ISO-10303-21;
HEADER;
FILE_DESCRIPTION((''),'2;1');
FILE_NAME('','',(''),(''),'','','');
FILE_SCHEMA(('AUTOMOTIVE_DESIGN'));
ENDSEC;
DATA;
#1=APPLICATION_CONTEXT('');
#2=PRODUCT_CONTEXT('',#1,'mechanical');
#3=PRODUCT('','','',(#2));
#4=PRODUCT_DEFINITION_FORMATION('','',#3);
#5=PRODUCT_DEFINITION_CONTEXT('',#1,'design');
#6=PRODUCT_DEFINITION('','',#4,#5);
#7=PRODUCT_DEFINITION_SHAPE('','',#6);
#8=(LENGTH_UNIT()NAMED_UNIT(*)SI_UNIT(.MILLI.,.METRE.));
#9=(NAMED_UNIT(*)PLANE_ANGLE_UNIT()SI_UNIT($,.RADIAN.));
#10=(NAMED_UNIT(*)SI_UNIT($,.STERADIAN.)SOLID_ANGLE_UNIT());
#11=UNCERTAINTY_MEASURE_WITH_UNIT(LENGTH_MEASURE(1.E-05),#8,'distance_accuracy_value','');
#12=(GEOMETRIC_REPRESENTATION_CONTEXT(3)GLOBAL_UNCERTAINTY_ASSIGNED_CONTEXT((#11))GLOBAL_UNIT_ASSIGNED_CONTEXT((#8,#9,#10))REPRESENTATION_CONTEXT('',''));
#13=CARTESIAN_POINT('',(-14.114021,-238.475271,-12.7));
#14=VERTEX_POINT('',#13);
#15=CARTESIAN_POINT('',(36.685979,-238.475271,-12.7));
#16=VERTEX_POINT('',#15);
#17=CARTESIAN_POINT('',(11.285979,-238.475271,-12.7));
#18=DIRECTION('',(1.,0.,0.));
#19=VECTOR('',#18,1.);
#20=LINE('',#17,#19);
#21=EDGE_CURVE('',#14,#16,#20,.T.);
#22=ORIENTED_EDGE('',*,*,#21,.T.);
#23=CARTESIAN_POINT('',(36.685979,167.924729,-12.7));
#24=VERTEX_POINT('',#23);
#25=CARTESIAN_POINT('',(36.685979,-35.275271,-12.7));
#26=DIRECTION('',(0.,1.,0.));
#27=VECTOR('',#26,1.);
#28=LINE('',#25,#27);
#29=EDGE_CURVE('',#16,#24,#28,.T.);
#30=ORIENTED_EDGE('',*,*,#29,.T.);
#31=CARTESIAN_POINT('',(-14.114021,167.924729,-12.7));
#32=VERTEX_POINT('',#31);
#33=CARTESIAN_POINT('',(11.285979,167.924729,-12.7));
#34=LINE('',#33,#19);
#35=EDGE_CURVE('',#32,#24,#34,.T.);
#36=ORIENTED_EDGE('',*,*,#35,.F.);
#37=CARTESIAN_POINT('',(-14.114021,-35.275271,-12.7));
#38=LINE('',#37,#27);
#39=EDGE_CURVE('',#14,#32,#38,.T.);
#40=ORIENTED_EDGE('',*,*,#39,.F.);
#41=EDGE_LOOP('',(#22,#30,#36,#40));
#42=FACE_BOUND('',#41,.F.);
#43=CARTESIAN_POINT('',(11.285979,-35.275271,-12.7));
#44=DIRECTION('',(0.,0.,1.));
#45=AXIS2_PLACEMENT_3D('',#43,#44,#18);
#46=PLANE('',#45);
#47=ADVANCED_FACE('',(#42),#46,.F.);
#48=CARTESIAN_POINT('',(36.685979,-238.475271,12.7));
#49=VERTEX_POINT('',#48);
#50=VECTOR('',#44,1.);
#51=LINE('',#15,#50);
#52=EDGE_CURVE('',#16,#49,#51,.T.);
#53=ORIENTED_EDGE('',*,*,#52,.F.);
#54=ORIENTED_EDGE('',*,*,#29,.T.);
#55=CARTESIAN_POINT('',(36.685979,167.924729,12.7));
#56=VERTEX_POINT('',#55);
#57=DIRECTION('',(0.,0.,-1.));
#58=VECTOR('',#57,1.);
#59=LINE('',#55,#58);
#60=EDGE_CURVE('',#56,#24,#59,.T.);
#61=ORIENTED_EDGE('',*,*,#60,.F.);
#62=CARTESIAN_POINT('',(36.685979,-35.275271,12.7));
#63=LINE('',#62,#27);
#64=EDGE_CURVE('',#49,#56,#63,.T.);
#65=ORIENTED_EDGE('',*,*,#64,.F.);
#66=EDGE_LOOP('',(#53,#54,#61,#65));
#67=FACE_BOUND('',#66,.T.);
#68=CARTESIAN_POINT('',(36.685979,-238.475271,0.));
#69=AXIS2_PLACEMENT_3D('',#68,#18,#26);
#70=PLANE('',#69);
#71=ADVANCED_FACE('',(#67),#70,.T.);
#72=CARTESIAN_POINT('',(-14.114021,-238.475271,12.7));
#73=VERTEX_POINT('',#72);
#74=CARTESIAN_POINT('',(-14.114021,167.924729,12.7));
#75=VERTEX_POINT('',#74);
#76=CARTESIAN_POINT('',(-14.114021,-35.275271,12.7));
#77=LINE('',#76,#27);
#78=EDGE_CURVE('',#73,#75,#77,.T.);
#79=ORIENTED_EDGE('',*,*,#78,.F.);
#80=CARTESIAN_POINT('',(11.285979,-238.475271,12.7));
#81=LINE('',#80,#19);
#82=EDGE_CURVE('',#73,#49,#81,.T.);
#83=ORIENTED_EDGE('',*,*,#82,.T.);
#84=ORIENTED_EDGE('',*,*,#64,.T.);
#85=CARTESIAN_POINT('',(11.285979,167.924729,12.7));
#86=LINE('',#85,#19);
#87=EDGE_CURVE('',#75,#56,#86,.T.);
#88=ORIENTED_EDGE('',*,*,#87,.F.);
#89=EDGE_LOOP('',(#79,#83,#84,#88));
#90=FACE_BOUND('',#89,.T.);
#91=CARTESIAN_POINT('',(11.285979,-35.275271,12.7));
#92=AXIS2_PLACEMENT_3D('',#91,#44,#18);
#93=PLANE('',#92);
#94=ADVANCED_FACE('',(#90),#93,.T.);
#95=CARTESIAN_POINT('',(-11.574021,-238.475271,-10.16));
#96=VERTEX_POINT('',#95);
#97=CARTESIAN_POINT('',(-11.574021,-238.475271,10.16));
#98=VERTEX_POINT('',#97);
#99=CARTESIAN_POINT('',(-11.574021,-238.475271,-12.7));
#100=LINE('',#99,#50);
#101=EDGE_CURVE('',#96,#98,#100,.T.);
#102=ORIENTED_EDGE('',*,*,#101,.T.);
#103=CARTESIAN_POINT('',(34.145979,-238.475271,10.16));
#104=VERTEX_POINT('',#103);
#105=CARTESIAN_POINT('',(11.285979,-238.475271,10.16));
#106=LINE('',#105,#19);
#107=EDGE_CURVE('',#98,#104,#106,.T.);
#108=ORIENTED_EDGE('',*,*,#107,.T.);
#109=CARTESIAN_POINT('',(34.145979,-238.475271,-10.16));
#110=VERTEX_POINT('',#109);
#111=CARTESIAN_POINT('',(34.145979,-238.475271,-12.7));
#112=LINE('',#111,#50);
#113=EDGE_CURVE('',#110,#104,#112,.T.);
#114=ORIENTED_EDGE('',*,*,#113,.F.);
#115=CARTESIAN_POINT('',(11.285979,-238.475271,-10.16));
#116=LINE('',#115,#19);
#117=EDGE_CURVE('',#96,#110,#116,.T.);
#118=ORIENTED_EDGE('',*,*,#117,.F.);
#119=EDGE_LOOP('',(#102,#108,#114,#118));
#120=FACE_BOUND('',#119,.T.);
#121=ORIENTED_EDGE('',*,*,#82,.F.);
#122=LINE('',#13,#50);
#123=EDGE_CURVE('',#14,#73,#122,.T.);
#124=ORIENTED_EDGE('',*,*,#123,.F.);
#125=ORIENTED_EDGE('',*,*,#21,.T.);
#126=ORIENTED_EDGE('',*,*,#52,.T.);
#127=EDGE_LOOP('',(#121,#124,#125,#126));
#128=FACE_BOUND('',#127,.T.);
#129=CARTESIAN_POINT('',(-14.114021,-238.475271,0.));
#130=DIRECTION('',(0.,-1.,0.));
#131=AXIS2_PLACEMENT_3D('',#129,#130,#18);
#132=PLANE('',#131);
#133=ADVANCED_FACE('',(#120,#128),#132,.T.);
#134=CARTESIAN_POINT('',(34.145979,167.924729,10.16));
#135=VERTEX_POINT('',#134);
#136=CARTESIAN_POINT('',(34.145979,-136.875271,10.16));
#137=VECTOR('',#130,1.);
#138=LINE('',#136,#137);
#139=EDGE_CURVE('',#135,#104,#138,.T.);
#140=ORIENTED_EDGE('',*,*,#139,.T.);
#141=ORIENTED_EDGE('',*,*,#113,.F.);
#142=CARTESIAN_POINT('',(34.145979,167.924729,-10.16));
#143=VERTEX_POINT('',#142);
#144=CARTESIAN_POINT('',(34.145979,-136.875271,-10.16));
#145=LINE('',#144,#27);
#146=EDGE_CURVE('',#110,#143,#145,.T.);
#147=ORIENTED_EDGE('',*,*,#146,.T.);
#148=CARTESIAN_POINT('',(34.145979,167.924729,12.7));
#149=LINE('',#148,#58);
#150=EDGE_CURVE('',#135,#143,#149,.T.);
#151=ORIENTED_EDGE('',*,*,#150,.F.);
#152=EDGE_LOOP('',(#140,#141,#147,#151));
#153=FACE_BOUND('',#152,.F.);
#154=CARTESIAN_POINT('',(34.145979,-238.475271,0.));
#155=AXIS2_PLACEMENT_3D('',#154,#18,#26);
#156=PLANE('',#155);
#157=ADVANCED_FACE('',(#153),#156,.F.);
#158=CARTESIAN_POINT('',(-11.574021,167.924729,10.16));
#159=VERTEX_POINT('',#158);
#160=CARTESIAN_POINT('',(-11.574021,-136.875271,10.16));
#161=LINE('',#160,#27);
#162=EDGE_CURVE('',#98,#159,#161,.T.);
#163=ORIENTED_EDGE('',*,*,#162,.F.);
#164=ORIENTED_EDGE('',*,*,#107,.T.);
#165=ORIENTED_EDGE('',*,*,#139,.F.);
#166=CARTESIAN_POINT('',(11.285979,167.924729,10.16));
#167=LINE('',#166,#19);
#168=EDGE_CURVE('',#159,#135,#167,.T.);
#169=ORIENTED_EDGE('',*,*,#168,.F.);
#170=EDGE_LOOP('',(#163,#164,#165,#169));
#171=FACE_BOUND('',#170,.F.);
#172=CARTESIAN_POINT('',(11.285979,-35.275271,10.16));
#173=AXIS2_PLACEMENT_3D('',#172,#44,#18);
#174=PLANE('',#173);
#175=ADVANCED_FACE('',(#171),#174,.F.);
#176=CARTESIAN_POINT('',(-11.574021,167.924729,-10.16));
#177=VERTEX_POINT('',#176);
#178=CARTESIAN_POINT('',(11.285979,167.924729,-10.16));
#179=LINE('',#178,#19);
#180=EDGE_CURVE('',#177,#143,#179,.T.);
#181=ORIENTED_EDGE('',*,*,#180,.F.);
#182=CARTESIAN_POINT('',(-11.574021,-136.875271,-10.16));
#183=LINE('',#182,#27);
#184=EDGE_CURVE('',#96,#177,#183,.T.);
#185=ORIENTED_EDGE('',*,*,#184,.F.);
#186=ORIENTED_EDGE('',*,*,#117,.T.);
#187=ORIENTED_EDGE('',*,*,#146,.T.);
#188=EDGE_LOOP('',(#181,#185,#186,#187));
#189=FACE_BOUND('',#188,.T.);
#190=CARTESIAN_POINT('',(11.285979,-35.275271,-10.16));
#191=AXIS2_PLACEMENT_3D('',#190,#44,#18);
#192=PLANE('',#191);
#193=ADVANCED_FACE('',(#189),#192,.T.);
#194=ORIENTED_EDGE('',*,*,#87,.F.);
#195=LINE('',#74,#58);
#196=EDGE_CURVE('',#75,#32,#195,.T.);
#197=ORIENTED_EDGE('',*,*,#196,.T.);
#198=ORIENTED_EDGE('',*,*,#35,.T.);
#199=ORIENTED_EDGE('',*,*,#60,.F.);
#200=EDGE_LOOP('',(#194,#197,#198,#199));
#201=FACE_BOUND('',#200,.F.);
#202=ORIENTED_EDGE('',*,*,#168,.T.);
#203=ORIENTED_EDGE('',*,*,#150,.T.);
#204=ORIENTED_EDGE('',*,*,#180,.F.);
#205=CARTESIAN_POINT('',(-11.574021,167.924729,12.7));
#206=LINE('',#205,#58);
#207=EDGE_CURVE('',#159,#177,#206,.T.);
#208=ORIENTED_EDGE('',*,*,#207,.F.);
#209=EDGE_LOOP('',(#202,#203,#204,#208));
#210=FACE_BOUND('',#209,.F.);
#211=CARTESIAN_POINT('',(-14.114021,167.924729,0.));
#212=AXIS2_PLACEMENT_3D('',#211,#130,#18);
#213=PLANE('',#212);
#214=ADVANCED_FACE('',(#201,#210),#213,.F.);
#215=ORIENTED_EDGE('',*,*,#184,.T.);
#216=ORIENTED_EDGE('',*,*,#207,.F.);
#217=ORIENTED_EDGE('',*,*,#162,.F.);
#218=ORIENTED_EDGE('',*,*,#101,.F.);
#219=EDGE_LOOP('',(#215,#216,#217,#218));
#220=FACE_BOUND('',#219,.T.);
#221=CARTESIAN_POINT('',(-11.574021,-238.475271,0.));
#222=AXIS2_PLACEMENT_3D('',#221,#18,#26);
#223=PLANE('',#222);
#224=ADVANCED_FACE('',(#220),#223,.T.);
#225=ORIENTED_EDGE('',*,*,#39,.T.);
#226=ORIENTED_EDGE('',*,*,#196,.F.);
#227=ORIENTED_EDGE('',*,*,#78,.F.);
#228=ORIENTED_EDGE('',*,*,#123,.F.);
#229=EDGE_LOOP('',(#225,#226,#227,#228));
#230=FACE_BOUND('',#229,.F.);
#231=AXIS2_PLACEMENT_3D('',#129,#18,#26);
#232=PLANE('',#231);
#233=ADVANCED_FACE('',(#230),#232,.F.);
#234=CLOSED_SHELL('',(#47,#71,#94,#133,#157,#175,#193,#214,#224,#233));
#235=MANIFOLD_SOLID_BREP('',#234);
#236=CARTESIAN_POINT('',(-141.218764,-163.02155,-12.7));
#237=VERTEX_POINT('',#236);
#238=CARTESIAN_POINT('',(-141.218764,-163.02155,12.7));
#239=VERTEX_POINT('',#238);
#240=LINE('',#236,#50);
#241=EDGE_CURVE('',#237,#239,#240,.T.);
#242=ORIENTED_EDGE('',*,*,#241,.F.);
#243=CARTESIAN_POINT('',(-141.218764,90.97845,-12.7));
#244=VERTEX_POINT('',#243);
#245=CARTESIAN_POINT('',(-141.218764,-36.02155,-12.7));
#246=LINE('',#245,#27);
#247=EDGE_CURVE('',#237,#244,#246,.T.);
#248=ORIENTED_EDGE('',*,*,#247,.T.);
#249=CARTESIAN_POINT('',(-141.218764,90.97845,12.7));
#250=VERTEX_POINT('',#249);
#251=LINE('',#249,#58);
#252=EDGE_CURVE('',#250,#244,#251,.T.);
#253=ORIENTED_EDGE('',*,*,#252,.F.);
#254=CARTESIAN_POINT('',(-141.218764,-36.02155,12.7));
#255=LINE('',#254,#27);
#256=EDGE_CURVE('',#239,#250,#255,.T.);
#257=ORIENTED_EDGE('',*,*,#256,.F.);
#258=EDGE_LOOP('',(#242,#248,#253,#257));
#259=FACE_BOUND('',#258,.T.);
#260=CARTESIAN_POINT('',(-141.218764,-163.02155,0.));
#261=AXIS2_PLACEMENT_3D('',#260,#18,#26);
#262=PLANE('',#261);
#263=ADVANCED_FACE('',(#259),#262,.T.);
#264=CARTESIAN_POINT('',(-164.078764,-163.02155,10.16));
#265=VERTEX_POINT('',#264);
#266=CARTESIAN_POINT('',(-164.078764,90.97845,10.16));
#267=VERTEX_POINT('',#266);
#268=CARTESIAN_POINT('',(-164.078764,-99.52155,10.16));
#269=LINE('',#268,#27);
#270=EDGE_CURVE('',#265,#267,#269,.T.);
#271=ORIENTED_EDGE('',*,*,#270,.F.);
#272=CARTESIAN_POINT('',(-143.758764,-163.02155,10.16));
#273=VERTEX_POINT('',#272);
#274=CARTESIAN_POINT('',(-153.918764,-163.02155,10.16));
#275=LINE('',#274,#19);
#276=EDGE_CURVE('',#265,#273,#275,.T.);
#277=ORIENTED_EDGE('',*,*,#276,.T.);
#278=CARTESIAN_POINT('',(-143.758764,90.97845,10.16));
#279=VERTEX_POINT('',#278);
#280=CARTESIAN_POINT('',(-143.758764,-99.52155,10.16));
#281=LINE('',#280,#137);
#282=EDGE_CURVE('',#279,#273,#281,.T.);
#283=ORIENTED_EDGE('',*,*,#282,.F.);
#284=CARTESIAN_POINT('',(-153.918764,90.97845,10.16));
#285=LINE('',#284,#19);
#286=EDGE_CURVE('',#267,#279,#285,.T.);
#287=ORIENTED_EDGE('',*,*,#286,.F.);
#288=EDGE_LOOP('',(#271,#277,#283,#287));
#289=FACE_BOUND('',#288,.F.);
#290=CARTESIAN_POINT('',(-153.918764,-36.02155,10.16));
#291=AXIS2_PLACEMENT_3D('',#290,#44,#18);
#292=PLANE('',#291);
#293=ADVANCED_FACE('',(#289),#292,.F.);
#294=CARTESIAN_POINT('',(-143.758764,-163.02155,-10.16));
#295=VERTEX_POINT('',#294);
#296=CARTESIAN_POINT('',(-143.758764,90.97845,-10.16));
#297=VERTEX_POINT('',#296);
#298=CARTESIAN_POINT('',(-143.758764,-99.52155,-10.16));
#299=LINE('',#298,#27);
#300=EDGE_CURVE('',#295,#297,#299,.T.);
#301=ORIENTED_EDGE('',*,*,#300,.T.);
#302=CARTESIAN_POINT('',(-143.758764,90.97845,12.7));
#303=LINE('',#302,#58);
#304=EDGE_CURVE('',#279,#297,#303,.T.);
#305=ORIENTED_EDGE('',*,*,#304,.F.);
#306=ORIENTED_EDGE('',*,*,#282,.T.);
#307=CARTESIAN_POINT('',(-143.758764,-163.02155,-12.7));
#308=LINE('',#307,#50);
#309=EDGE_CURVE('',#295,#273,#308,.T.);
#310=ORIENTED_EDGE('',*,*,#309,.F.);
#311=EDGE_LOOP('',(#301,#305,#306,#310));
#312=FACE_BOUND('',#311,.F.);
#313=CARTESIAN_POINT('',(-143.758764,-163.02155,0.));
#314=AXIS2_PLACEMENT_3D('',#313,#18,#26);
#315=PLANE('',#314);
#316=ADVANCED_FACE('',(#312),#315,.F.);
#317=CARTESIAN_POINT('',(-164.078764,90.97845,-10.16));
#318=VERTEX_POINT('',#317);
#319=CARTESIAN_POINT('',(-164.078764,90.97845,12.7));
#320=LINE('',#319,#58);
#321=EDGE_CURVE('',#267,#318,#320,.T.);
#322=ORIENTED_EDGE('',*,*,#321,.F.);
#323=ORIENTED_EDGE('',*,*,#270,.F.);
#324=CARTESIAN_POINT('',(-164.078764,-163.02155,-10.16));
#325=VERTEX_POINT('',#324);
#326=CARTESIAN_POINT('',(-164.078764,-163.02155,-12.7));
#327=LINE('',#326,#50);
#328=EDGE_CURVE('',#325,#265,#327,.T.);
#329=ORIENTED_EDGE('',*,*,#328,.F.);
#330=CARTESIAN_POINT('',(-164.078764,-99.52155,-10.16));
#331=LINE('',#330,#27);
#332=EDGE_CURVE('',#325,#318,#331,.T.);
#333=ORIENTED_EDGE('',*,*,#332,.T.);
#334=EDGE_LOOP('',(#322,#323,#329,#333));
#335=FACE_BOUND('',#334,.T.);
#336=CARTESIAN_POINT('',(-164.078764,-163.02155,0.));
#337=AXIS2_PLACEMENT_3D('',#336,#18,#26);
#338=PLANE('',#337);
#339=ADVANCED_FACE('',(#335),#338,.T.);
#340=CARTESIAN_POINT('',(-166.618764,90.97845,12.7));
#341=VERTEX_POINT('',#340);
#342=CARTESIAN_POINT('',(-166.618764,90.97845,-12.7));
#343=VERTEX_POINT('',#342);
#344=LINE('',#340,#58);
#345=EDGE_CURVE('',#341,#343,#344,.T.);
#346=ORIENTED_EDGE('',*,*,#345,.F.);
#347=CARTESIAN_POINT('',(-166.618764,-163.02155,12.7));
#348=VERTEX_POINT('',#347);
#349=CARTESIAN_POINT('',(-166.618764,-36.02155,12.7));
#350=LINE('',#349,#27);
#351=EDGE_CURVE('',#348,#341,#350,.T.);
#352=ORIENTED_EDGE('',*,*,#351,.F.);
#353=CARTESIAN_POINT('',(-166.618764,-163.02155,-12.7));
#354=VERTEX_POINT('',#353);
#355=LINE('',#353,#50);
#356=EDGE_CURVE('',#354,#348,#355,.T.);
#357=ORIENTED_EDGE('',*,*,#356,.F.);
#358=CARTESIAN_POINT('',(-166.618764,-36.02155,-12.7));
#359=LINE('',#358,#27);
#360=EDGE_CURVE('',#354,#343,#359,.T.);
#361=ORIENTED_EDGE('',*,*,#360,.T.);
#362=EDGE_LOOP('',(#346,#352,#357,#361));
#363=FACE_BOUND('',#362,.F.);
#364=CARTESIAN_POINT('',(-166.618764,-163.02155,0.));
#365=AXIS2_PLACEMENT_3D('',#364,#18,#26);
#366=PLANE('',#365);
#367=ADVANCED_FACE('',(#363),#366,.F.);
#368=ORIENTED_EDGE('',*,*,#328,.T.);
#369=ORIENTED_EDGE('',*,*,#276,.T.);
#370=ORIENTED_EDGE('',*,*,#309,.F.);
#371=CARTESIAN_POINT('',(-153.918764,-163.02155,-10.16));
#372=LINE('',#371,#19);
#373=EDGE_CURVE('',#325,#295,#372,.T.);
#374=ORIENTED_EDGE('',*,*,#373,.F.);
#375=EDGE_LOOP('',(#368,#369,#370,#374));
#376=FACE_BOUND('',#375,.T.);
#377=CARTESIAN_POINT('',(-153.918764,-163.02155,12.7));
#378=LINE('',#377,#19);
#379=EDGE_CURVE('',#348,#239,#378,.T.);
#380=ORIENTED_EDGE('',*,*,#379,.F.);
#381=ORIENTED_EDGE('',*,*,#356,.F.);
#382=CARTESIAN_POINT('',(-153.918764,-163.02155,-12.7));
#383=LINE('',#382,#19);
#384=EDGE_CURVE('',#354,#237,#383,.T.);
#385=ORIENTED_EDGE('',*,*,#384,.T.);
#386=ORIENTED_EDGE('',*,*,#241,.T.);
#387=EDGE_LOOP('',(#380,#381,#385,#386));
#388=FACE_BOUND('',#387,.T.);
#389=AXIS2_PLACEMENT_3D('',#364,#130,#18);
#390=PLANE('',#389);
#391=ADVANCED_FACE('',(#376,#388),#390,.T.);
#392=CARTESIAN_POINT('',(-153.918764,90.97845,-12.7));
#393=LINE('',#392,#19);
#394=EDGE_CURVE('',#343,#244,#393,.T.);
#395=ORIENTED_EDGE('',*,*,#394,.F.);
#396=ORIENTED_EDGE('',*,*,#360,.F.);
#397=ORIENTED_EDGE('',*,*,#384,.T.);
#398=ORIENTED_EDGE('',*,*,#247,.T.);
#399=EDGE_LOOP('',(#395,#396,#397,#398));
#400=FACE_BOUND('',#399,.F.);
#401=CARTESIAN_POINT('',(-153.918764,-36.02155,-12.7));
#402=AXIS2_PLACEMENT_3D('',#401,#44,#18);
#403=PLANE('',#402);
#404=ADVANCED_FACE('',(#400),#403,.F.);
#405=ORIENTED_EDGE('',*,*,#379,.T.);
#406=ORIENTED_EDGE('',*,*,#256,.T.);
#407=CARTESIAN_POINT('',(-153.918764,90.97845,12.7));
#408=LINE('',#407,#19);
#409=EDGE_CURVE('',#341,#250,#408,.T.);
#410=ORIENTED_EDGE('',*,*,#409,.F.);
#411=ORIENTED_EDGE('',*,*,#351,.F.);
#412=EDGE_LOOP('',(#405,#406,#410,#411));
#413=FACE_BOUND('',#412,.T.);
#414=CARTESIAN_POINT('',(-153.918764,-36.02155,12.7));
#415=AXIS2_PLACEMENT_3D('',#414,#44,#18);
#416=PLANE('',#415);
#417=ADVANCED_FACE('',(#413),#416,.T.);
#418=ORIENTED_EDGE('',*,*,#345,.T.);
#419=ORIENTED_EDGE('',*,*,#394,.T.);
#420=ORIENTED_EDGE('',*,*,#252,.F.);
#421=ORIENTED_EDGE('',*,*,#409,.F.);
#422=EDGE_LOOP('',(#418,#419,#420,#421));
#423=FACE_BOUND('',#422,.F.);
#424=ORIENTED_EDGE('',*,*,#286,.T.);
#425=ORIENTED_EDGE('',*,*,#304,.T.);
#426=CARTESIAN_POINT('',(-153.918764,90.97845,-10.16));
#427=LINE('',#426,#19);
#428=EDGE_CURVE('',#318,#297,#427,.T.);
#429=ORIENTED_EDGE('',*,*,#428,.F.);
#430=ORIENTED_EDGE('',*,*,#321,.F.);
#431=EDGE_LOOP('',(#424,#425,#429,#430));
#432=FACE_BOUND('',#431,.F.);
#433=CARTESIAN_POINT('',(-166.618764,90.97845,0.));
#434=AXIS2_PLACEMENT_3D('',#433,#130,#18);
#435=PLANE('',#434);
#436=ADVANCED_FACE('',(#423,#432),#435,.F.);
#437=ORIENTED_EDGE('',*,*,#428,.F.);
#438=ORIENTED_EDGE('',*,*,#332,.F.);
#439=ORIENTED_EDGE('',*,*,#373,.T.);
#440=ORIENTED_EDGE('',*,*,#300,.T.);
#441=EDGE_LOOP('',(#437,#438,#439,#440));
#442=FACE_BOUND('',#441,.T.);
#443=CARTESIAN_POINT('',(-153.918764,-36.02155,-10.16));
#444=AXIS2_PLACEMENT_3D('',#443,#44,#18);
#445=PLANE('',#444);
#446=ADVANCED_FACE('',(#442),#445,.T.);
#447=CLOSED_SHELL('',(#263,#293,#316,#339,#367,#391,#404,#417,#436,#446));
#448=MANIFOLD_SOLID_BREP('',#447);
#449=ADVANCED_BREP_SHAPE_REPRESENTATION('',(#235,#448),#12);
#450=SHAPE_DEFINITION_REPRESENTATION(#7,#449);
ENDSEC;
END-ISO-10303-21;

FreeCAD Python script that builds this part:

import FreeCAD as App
import Part
import Sketcher
Q = App.Units.Quantity


def faces_at(feature, points):
    """Names of the faces that lie closest to the given points."""
    faces = feature.Shape.Faces
    near = lambda p: min(range(len(faces)), key=lambda i: faces[i].distToShape(Part.Vertex(*p))[0])
    return sorted({f"Face{near(p) + 1}" for p in points})

doc = App.newDocument("Part")
body = doc.addObject("PartDesign::Body", "Body")

sketch1 = doc.addObject("Sketcher::SketchObject", "Sketch")
body.addObject(sketch1)
sketch1.AttachmentSupport = (doc.XY_Plane, [""])
sketch1.MapMode = "FlatFace"
sketch1.addGeometry([
    Part.LineSegment(App.Vector(-14, 168, 0), App.Vector(-14, -238, 0)),
    Part.LineSegment(App.Vector(-14, -238, 0), App.Vector(37, -238, 0)),
    Part.LineSegment(App.Vector(37, -238, 0), App.Vector(37, 168, 0)),
    Part.LineSegment(App.Vector(37, 168, 0), App.Vector(-14, 168, 0)),
], False)
sketch1.addConstraint([
    Sketcher.Constraint("Coincident", 0, 2, 1, 1),
    Sketcher.Constraint("Coincident", 1, 2, 2, 1),
    Sketcher.Constraint("Coincident", 2, 2, 3, 1),
    Sketcher.Constraint("Coincident", 3, 2, 0, 1),
    Sketcher.Constraint("Vertical", 0),
    Sketcher.Constraint("Horizontal", 1),
    Sketcher.Constraint("Vertical", 2),
    Sketcher.Constraint("Horizontal", 3),
    Sketcher.Constraint("DistanceX", 1, 1, 1, 2, Q("2 in")),
    Sketcher.Constraint("DistanceY", 0, 2, 0, 1, Q("16 in")),
    Sketcher.Constraint("DistanceX", 0, 2, -1, 1, 14.114021),
    Sketcher.Constraint("DistanceY", 0, 2, -1, 1, 238.475271),
])
pad1 = doc.addObject("PartDesign::Pad", "Pad")
body.addObject(pad1)
pad1.Profile = sketch1
pad1.Length = Q("1 in")
pad1.Midplane = True
doc.recompute()

thickness = doc.addObject("PartDesign::Thickness", "Thickness")
body.addObject(thickness)
thickness.Base = (pad1, faces_at(pad1, [(11.286, 167.925, 0), (11.286, -238.475, 0)]))
thickness.Value = Q("0.1 in")
thickness.Reversed = True
thickness.Join = "Arc"
body2 = doc.addObject("PartDesign::Body", "Body001")

sketch2 = doc.addObject("Sketcher::SketchObject", "Sketch001")
body2.addObject(sketch2)
sketch2.AttachmentSupport = (doc.getObject("XY_Plane001"), [""])
sketch2.MapMode = "FlatFace"
sketch2.addGeometry([
    Part.LineSegment(App.Vector(-167, 91, 0), App.Vector(-167, -163, 0)),
    Part.LineSegment(App.Vector(-167, -163, 0), App.Vector(-141, -163, 0)),
    Part.LineSegment(App.Vector(-141, -163, 0), App.Vector(-141, 91, 0)),
    Part.LineSegment(App.Vector(-141, 91, 0), App.Vector(-167, 91, 0)),
], False)
sketch2.addConstraint([
    Sketcher.Constraint("Coincident", 0, 2, 1, 1),
    Sketcher.Constraint("Coincident", 1, 2, 2, 1),
    Sketcher.Constraint("Coincident", 2, 2, 3, 1),
    Sketcher.Constraint("Coincident", 3, 2, 0, 1),
    Sketcher.Constraint("Vertical", 0),
    Sketcher.Constraint("Horizontal", 1),
    Sketcher.Constraint("Vertical", 2),
    Sketcher.Constraint("Horizontal", 3),
    Sketcher.Constraint("DistanceX", 1, 1, 1, 2, Q("1 in")),
    Sketcher.Constraint("DistanceY", 0, 2, 0, 1, Q("10 in")),
    Sketcher.Constraint("DistanceY", 0, 2, -1, 1, 163.02155),
    Sketcher.Constraint("DistanceX", 0, 2, -1, 1, 166.618764),
])
pad2 = doc.addObject("PartDesign::Pad", "Pad001")
body2.addObject(pad2)
pad2.Profile = sketch2
pad2.Length = Q("1 in")
pad2.Midplane = True
doc.recompute()

thickness2 = doc.addObject("PartDesign::Thickness", "Thickness001")
body2.addObject(thickness2)
thickness2.Base = (pad2, faces_at(pad2, [(-153.919, 90.978, 0), (-153.919, -163.022, 0)]))
thickness2.Value = Q("0.1 in")
thickness2.Reversed = True
thickness2.Join = "Arc"

doc.recompute()
